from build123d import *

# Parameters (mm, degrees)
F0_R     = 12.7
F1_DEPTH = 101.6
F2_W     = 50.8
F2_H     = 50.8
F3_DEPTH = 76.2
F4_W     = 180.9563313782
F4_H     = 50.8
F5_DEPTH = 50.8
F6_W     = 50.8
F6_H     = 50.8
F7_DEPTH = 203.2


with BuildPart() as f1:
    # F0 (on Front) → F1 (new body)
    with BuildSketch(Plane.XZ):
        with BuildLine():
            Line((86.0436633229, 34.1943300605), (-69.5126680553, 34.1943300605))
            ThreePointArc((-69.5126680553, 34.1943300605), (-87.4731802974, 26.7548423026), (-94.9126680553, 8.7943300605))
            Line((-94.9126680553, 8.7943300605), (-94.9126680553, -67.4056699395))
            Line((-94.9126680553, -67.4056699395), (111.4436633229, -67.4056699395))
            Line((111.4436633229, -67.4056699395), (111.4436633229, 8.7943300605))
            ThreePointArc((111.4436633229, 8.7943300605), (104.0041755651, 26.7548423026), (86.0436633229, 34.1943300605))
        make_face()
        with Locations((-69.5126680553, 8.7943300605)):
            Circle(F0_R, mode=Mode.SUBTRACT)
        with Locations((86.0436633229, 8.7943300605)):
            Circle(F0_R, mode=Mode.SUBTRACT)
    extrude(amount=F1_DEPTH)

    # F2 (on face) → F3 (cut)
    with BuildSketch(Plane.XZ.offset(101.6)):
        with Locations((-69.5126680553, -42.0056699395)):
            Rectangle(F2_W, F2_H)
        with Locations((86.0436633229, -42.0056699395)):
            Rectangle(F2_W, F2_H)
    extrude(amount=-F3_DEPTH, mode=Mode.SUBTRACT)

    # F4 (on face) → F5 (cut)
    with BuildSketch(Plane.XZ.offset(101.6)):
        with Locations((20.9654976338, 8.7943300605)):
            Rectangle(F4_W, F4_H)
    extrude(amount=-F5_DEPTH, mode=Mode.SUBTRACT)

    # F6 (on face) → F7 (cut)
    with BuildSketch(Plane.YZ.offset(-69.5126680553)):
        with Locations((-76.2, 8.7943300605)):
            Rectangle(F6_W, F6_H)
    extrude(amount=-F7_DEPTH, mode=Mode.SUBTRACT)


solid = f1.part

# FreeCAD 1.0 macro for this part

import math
import FreeCAD as App
import Part
import Sketcher

V = App.Vector
Q = App.Units.Quantity

doc = App.newDocument("Part")
params = doc.addObject("Spreadsheet::Sheet", "Params")
for row, (alias, value) in enumerate([
    ("sketch1_diameter", "1 in"),
    ("sketch1_radius", "1 in"),
    ("sketch1_height", "3 in"),
    ("pad1_length", "4 in"),
    ("sketch2_width", "2 in"),
    ("pocket1_length", "3 in"),
    ("sketch3_height", "2 in"),
    ("pocket2_length", "2 in"),
    ("sketch4_width", "2 in"),
    ("pocket3_length", "8 in"),
], start=1):
    params.set(f"A{row}", alias)
    params.set(f"B{row}", "=" + value)
    params.setAlias(f"B{row}", alias)

body = doc.addObject("PartDesign::Body", "Body")

# Sketch on XZ plane
sketch1 = doc.addObject("Sketcher::SketchObject", "Sketch")
body.addObject(sketch1)
sketch1.AttachmentSupport = (doc.XZ_Plane, [""])
sketch1.MapMode = "FlatFace"
sketch1.addGeometry([
    Part.LineSegment(V(86.043663, 34.19433, 0), V(-69.512668, 34.19433, 0)),  # 0
    Part.ArcOfCircle(Part.Circle(V(-69.512668, 8.79433, 0), V(0, 0, 1), 25.4), math.radians(90), math.radians(180)),  # 1
    Part.LineSegment(V(-94.912668, 8.79433, 0), V(-94.912668, -67.40567, 0)),  # 2
    Part.LineSegment(V(-94.912668, -67.40567, 0), V(111.443663, -67.40567, 0)),  # 3
    Part.LineSegment(V(111.443663, -67.40567, 0), V(111.443663, 8.79433, 0)),  # 4
    Part.ArcOfCircle(Part.Circle(V(86.043663, 8.79433, 0), V(0, 0, 1), 25.4), math.radians(0), math.radians(90)),  # 5
    Part.Circle(V(-69.512668, 8.79433, 0), V(0, 0, 1), 12.7),  # 6
    Part.Circle(V(86.043663, 8.79433, 0), V(0, 0, 1), 12.7),  # 7
], False)
sketch1.addConstraint([
    Sketcher.Constraint("Tangent", 0, 2, 1, 1),
    Sketcher.Constraint("Tangent", 1, 2, 2, 1),
    Sketcher.Constraint("Coincident", 2, 2, 3, 1),
    Sketcher.Constraint("Coincident", 3, 2, 4, 1),
    Sketcher.Constraint("Tangent", 4, 2, 5, 1),
    Sketcher.Constraint("Tangent", 5, 2, 0, 1),
    Sketcher.Constraint("Horizontal", 0),
    Sketcher.Constraint("Vertical", 2),
    Sketcher.Constraint("Horizontal", 3),
    Sketcher.Constraint("Vertical", 4),
    Sketcher.Constraint("Coincident", 6, 3, 1, 3),
    Sketcher.Constraint("Coincident", 7, 3, 5, 3),
    Sketcher.Constraint("Equal", 1, 5),
    Sketcher.Constraint("Equal", 6, 7),
    Sketcher.Constraint("Diameter", 6, Q("1 in")),
    Sketcher.Constraint("Radius", 1, Q("1 in")),
    Sketcher.Constraint("DistanceY", 2, 2, 2, 1, Q("3 in")),
    Sketcher.Constraint("DistanceX", 0, 2, 0, 1, 155.556331),
    Sketcher.Constraint("DistanceX", 1, 3, -1, 1, 69.512668),
    Sketcher.Constraint("DistanceY", -1, 1, 1, 3, 8.79433),
])
sketch1.setExpression("Constraints[14]", "Params.sketch1_diameter")
sketch1.setExpression("Constraints[15]", "Params.sketch1_radius")
sketch1.setExpression("Constraints[16]", "Params.sketch1_height")
pad1 = doc.addObject("PartDesign::Pad", "Pad")
body.addObject(pad1)
pad1.Profile = sketch1
pad1.setExpression("Length", "Params.pad1_length")

# Sketch on XZ plane
sketch2 = doc.addObject("Sketcher::SketchObject", "Sketch001")
body.addObject(sketch2)
sketch2.AttachmentSupport = (doc.XZ_Plane, [""])
sketch2.MapMode = "FlatFace"
sketch2.AttachmentOffset = App.Placement(V(0, 0, 4 * 25.4), App.Rotation())
sketch2.addGeometry([
    Part.LineSegment(V(-94.912668, -16.60567, 0), V(-94.912668, -67.40567, 0)),  # 0
    Part.LineSegment(V(-94.912668, -67.40567, 0), V(-44.112668, -67.40567, 0)),  # 1
    Part.LineSegment(V(-44.112668, -67.40567, 0), V(-44.112668, -16.60567, 0)),  # 2
    Part.LineSegment(V(-44.112668, -16.60567, 0), V(-94.912668, -16.60567, 0)),  # 3
    Part.LineSegment(V(60.643663, -16.60567, 0), V(60.643663, -67.40567, 0)),  # 4
    Part.LineSegment(V(60.643663, -67.40567, 0), V(111.443663, -67.40567, 0)),  # 5
    Part.LineSegment(V(111.443663, -67.40567, 0), V(111.443663, -16.60567, 0)),  # 6
    Part.LineSegment(V(111.443663, -16.60567, 0), V(60.643663, -16.60567, 0)),  # 7
], False)
sketch2.addConstraint([
    Sketcher.Constraint("Coincident", 0, 2, 1, 1),
    Sketcher.Constraint("Coincident", 1, 2, 2, 1),
    Sketcher.Constraint("Coincident", 2, 2, 3, 1),
    Sketcher.Constraint("Coincident", 3, 2, 0, 1),
    Sketcher.Constraint("Coincident", 4, 2, 5, 1),
    Sketcher.Constraint("Coincident", 5, 2, 6, 1),
    Sketcher.Constraint("Coincident", 6, 2, 7, 1),
    Sketcher.Constraint("Coincident", 7, 2, 4, 1),
    Sketcher.Constraint("Vertical", 0),
    Sketcher.Constraint("Horizontal", 1),
    Sketcher.Constraint("Vertical", 2),
    Sketcher.Constraint("Horizontal", 3),
    Sketcher.Constraint("Vertical", 4),
    Sketcher.Constraint("Horizontal", 5),
    Sketcher.Constraint("Vertical", 6),
    Sketcher.Constraint("Horizontal", 7),
    Sketcher.Constraint("Horizontal", 1, 2, 4, 2),
    Sketcher.Constraint("Horizontal", 3, 2, 6, 2),
    Sketcher.Constraint("Equal", 3, 5),
    Sketcher.Constraint("Equal", 7, 0),
    Sketcher.Constraint("DistanceX", 1, 1, 1, 2, Q("2 in")),
    Sketcher.Constraint("DistanceX", 0, 2, -1, 1, 94.912668),
    Sketcher.Constraint("DistanceY", 0, 2, -1, 1, 67.40567),
    Sketcher.Constraint("DistanceX", 1, 2, 4, 2, 104.756331),
])
sketch2.setExpression("Constraints[20]", "Params.sketch2_width")
pocket1 = doc.addObject("PartDesign::Pocket", "Pocket")
body.addObject(pocket1)
pocket1.Profile = sketch2
pocket1.setExpression("Length", "Params.pocket1_length")

# Sketch on XZ plane
sketch3 = doc.addObject("Sketcher::SketchObject", "Sketch002")
body.addObject(sketch3)
sketch3.AttachmentSupport = (doc.XZ_Plane, [""])
sketch3.MapMode = "FlatFace"
sketch3.AttachmentOffset = App.Placement(V(0, 0, 4 * 25.4), App.Rotation())
sketch3.addGeometry([
    Part.LineSegment(V(-69.512668, 34.19433, 0), V(-69.512668, -16.60567, 0)),
    Part.LineSegment(V(-69.512668, -16.60567, 0), V(111.443663, -16.60567, 0)),
    Part.LineSegment(V(111.443663, -16.60567, 0), V(111.443663, 34.19433, 0)),
    Part.LineSegment(V(111.443663, 34.19433, 0), V(-69.512668, 34.19433, 0)),
], False)
sketch3.addConstraint([
    Sketcher.Constraint("Coincident", 0, 2, 1, 1),
    Sketcher.Constraint("Coincident", 1, 2, 2, 1),
    Sketcher.Constraint("Coincident", 2, 2, 3, 1),
    Sketcher.Constraint("Coincident", 3, 2, 0, 1),
    Sketcher.Constraint("Vertical", 0),
    Sketcher.Constraint("Horizontal", 1),
    Sketcher.Constraint("Vertical", 2),
    Sketcher.Constraint("Horizontal", 3),
    Sketcher.Constraint("DistanceY", 0, 2, 0, 1, Q("2 in")),
    Sketcher.Constraint("DistanceX", 1, 1, 1, 2, 180.956331),
    Sketcher.Constraint("DistanceX", 0, 2, -1, 1, 69.512668),
    Sketcher.Constraint("DistanceY", 0, 2, -1, 1, 16.60567),
])
sketch3.setExpression("Constraints[8]", "Params.sketch3_height")
pocket2 = doc.addObject("PartDesign::Pocket", "Pocket001")
body.addObject(pocket2)
pocket2.Profile = sketch3
pocket2.setExpression("Length", "Params.pocket2_length")

# Sketch on YZ plane
sketch4 = doc.addObject("Sketcher::SketchObject", "Sketch003")
body.addObject(sketch4)
sketch4.AttachmentSupport = (doc.YZ_Plane, [""])
sketch4.MapMode = "FlatFace"
sketch4.AttachmentOffset = App.Placement(V(0, 0, -69.512668), App.Rotation())
sketch4.addGeometry([
    Part.LineSegment(V(-101.6, 34.19433, 0), V(-101.6, -16.60567, 0)),
    Part.LineSegment(V(-101.6, -16.60567, 0), V(-50.8, -16.60567, 0)),
    Part.LineSegment(V(-50.8, -16.60567, 0), V(-50.8, 34.19433, 0)),
    Part.LineSegment(V(-50.8, 34.19433, 0), V(-101.6, 34.19433, 0)),
], False)
sketch4.addConstraint([
    Sketcher.Constraint("Coincident", 0, 2, 1, 1),
    Sketcher.Constraint("Coincident", 1, 2, 2, 1),
    Sketcher.Constraint("Coincident", 2, 2, 3, 1),
    Sketcher.Constraint("Coincident", 3, 2, 0, 1),
    Sketcher.Constraint("Vertical", 0),
    Sketcher.Constraint("Horizontal", 1),
    Sketcher.Constraint("Vertical", 2),
    Sketcher.Constraint("Horizontal", 3),
    Sketcher.Constraint("Equal", 3, 0),
    Sketcher.Constraint("DistanceX", 1, 1, 1, 2, Q("2 in")),
    Sketcher.Constraint("DistanceX", 0, 2, -1, 1, Q("4 in")),
    Sketcher.Constraint("DistanceY", 0, 2, -1, 1, 16.60567),
])
sketch4.setExpression("Constraints[9]", "Params.sketch4_width")
pocket3 = doc.addObject("PartDesign::Pocket", "Pocket002")
body.addObject(pocket3)
pocket3.Profile = sketch4
pocket3.setExpression("Length", "Params.pocket3_length")

doc.recompute()
